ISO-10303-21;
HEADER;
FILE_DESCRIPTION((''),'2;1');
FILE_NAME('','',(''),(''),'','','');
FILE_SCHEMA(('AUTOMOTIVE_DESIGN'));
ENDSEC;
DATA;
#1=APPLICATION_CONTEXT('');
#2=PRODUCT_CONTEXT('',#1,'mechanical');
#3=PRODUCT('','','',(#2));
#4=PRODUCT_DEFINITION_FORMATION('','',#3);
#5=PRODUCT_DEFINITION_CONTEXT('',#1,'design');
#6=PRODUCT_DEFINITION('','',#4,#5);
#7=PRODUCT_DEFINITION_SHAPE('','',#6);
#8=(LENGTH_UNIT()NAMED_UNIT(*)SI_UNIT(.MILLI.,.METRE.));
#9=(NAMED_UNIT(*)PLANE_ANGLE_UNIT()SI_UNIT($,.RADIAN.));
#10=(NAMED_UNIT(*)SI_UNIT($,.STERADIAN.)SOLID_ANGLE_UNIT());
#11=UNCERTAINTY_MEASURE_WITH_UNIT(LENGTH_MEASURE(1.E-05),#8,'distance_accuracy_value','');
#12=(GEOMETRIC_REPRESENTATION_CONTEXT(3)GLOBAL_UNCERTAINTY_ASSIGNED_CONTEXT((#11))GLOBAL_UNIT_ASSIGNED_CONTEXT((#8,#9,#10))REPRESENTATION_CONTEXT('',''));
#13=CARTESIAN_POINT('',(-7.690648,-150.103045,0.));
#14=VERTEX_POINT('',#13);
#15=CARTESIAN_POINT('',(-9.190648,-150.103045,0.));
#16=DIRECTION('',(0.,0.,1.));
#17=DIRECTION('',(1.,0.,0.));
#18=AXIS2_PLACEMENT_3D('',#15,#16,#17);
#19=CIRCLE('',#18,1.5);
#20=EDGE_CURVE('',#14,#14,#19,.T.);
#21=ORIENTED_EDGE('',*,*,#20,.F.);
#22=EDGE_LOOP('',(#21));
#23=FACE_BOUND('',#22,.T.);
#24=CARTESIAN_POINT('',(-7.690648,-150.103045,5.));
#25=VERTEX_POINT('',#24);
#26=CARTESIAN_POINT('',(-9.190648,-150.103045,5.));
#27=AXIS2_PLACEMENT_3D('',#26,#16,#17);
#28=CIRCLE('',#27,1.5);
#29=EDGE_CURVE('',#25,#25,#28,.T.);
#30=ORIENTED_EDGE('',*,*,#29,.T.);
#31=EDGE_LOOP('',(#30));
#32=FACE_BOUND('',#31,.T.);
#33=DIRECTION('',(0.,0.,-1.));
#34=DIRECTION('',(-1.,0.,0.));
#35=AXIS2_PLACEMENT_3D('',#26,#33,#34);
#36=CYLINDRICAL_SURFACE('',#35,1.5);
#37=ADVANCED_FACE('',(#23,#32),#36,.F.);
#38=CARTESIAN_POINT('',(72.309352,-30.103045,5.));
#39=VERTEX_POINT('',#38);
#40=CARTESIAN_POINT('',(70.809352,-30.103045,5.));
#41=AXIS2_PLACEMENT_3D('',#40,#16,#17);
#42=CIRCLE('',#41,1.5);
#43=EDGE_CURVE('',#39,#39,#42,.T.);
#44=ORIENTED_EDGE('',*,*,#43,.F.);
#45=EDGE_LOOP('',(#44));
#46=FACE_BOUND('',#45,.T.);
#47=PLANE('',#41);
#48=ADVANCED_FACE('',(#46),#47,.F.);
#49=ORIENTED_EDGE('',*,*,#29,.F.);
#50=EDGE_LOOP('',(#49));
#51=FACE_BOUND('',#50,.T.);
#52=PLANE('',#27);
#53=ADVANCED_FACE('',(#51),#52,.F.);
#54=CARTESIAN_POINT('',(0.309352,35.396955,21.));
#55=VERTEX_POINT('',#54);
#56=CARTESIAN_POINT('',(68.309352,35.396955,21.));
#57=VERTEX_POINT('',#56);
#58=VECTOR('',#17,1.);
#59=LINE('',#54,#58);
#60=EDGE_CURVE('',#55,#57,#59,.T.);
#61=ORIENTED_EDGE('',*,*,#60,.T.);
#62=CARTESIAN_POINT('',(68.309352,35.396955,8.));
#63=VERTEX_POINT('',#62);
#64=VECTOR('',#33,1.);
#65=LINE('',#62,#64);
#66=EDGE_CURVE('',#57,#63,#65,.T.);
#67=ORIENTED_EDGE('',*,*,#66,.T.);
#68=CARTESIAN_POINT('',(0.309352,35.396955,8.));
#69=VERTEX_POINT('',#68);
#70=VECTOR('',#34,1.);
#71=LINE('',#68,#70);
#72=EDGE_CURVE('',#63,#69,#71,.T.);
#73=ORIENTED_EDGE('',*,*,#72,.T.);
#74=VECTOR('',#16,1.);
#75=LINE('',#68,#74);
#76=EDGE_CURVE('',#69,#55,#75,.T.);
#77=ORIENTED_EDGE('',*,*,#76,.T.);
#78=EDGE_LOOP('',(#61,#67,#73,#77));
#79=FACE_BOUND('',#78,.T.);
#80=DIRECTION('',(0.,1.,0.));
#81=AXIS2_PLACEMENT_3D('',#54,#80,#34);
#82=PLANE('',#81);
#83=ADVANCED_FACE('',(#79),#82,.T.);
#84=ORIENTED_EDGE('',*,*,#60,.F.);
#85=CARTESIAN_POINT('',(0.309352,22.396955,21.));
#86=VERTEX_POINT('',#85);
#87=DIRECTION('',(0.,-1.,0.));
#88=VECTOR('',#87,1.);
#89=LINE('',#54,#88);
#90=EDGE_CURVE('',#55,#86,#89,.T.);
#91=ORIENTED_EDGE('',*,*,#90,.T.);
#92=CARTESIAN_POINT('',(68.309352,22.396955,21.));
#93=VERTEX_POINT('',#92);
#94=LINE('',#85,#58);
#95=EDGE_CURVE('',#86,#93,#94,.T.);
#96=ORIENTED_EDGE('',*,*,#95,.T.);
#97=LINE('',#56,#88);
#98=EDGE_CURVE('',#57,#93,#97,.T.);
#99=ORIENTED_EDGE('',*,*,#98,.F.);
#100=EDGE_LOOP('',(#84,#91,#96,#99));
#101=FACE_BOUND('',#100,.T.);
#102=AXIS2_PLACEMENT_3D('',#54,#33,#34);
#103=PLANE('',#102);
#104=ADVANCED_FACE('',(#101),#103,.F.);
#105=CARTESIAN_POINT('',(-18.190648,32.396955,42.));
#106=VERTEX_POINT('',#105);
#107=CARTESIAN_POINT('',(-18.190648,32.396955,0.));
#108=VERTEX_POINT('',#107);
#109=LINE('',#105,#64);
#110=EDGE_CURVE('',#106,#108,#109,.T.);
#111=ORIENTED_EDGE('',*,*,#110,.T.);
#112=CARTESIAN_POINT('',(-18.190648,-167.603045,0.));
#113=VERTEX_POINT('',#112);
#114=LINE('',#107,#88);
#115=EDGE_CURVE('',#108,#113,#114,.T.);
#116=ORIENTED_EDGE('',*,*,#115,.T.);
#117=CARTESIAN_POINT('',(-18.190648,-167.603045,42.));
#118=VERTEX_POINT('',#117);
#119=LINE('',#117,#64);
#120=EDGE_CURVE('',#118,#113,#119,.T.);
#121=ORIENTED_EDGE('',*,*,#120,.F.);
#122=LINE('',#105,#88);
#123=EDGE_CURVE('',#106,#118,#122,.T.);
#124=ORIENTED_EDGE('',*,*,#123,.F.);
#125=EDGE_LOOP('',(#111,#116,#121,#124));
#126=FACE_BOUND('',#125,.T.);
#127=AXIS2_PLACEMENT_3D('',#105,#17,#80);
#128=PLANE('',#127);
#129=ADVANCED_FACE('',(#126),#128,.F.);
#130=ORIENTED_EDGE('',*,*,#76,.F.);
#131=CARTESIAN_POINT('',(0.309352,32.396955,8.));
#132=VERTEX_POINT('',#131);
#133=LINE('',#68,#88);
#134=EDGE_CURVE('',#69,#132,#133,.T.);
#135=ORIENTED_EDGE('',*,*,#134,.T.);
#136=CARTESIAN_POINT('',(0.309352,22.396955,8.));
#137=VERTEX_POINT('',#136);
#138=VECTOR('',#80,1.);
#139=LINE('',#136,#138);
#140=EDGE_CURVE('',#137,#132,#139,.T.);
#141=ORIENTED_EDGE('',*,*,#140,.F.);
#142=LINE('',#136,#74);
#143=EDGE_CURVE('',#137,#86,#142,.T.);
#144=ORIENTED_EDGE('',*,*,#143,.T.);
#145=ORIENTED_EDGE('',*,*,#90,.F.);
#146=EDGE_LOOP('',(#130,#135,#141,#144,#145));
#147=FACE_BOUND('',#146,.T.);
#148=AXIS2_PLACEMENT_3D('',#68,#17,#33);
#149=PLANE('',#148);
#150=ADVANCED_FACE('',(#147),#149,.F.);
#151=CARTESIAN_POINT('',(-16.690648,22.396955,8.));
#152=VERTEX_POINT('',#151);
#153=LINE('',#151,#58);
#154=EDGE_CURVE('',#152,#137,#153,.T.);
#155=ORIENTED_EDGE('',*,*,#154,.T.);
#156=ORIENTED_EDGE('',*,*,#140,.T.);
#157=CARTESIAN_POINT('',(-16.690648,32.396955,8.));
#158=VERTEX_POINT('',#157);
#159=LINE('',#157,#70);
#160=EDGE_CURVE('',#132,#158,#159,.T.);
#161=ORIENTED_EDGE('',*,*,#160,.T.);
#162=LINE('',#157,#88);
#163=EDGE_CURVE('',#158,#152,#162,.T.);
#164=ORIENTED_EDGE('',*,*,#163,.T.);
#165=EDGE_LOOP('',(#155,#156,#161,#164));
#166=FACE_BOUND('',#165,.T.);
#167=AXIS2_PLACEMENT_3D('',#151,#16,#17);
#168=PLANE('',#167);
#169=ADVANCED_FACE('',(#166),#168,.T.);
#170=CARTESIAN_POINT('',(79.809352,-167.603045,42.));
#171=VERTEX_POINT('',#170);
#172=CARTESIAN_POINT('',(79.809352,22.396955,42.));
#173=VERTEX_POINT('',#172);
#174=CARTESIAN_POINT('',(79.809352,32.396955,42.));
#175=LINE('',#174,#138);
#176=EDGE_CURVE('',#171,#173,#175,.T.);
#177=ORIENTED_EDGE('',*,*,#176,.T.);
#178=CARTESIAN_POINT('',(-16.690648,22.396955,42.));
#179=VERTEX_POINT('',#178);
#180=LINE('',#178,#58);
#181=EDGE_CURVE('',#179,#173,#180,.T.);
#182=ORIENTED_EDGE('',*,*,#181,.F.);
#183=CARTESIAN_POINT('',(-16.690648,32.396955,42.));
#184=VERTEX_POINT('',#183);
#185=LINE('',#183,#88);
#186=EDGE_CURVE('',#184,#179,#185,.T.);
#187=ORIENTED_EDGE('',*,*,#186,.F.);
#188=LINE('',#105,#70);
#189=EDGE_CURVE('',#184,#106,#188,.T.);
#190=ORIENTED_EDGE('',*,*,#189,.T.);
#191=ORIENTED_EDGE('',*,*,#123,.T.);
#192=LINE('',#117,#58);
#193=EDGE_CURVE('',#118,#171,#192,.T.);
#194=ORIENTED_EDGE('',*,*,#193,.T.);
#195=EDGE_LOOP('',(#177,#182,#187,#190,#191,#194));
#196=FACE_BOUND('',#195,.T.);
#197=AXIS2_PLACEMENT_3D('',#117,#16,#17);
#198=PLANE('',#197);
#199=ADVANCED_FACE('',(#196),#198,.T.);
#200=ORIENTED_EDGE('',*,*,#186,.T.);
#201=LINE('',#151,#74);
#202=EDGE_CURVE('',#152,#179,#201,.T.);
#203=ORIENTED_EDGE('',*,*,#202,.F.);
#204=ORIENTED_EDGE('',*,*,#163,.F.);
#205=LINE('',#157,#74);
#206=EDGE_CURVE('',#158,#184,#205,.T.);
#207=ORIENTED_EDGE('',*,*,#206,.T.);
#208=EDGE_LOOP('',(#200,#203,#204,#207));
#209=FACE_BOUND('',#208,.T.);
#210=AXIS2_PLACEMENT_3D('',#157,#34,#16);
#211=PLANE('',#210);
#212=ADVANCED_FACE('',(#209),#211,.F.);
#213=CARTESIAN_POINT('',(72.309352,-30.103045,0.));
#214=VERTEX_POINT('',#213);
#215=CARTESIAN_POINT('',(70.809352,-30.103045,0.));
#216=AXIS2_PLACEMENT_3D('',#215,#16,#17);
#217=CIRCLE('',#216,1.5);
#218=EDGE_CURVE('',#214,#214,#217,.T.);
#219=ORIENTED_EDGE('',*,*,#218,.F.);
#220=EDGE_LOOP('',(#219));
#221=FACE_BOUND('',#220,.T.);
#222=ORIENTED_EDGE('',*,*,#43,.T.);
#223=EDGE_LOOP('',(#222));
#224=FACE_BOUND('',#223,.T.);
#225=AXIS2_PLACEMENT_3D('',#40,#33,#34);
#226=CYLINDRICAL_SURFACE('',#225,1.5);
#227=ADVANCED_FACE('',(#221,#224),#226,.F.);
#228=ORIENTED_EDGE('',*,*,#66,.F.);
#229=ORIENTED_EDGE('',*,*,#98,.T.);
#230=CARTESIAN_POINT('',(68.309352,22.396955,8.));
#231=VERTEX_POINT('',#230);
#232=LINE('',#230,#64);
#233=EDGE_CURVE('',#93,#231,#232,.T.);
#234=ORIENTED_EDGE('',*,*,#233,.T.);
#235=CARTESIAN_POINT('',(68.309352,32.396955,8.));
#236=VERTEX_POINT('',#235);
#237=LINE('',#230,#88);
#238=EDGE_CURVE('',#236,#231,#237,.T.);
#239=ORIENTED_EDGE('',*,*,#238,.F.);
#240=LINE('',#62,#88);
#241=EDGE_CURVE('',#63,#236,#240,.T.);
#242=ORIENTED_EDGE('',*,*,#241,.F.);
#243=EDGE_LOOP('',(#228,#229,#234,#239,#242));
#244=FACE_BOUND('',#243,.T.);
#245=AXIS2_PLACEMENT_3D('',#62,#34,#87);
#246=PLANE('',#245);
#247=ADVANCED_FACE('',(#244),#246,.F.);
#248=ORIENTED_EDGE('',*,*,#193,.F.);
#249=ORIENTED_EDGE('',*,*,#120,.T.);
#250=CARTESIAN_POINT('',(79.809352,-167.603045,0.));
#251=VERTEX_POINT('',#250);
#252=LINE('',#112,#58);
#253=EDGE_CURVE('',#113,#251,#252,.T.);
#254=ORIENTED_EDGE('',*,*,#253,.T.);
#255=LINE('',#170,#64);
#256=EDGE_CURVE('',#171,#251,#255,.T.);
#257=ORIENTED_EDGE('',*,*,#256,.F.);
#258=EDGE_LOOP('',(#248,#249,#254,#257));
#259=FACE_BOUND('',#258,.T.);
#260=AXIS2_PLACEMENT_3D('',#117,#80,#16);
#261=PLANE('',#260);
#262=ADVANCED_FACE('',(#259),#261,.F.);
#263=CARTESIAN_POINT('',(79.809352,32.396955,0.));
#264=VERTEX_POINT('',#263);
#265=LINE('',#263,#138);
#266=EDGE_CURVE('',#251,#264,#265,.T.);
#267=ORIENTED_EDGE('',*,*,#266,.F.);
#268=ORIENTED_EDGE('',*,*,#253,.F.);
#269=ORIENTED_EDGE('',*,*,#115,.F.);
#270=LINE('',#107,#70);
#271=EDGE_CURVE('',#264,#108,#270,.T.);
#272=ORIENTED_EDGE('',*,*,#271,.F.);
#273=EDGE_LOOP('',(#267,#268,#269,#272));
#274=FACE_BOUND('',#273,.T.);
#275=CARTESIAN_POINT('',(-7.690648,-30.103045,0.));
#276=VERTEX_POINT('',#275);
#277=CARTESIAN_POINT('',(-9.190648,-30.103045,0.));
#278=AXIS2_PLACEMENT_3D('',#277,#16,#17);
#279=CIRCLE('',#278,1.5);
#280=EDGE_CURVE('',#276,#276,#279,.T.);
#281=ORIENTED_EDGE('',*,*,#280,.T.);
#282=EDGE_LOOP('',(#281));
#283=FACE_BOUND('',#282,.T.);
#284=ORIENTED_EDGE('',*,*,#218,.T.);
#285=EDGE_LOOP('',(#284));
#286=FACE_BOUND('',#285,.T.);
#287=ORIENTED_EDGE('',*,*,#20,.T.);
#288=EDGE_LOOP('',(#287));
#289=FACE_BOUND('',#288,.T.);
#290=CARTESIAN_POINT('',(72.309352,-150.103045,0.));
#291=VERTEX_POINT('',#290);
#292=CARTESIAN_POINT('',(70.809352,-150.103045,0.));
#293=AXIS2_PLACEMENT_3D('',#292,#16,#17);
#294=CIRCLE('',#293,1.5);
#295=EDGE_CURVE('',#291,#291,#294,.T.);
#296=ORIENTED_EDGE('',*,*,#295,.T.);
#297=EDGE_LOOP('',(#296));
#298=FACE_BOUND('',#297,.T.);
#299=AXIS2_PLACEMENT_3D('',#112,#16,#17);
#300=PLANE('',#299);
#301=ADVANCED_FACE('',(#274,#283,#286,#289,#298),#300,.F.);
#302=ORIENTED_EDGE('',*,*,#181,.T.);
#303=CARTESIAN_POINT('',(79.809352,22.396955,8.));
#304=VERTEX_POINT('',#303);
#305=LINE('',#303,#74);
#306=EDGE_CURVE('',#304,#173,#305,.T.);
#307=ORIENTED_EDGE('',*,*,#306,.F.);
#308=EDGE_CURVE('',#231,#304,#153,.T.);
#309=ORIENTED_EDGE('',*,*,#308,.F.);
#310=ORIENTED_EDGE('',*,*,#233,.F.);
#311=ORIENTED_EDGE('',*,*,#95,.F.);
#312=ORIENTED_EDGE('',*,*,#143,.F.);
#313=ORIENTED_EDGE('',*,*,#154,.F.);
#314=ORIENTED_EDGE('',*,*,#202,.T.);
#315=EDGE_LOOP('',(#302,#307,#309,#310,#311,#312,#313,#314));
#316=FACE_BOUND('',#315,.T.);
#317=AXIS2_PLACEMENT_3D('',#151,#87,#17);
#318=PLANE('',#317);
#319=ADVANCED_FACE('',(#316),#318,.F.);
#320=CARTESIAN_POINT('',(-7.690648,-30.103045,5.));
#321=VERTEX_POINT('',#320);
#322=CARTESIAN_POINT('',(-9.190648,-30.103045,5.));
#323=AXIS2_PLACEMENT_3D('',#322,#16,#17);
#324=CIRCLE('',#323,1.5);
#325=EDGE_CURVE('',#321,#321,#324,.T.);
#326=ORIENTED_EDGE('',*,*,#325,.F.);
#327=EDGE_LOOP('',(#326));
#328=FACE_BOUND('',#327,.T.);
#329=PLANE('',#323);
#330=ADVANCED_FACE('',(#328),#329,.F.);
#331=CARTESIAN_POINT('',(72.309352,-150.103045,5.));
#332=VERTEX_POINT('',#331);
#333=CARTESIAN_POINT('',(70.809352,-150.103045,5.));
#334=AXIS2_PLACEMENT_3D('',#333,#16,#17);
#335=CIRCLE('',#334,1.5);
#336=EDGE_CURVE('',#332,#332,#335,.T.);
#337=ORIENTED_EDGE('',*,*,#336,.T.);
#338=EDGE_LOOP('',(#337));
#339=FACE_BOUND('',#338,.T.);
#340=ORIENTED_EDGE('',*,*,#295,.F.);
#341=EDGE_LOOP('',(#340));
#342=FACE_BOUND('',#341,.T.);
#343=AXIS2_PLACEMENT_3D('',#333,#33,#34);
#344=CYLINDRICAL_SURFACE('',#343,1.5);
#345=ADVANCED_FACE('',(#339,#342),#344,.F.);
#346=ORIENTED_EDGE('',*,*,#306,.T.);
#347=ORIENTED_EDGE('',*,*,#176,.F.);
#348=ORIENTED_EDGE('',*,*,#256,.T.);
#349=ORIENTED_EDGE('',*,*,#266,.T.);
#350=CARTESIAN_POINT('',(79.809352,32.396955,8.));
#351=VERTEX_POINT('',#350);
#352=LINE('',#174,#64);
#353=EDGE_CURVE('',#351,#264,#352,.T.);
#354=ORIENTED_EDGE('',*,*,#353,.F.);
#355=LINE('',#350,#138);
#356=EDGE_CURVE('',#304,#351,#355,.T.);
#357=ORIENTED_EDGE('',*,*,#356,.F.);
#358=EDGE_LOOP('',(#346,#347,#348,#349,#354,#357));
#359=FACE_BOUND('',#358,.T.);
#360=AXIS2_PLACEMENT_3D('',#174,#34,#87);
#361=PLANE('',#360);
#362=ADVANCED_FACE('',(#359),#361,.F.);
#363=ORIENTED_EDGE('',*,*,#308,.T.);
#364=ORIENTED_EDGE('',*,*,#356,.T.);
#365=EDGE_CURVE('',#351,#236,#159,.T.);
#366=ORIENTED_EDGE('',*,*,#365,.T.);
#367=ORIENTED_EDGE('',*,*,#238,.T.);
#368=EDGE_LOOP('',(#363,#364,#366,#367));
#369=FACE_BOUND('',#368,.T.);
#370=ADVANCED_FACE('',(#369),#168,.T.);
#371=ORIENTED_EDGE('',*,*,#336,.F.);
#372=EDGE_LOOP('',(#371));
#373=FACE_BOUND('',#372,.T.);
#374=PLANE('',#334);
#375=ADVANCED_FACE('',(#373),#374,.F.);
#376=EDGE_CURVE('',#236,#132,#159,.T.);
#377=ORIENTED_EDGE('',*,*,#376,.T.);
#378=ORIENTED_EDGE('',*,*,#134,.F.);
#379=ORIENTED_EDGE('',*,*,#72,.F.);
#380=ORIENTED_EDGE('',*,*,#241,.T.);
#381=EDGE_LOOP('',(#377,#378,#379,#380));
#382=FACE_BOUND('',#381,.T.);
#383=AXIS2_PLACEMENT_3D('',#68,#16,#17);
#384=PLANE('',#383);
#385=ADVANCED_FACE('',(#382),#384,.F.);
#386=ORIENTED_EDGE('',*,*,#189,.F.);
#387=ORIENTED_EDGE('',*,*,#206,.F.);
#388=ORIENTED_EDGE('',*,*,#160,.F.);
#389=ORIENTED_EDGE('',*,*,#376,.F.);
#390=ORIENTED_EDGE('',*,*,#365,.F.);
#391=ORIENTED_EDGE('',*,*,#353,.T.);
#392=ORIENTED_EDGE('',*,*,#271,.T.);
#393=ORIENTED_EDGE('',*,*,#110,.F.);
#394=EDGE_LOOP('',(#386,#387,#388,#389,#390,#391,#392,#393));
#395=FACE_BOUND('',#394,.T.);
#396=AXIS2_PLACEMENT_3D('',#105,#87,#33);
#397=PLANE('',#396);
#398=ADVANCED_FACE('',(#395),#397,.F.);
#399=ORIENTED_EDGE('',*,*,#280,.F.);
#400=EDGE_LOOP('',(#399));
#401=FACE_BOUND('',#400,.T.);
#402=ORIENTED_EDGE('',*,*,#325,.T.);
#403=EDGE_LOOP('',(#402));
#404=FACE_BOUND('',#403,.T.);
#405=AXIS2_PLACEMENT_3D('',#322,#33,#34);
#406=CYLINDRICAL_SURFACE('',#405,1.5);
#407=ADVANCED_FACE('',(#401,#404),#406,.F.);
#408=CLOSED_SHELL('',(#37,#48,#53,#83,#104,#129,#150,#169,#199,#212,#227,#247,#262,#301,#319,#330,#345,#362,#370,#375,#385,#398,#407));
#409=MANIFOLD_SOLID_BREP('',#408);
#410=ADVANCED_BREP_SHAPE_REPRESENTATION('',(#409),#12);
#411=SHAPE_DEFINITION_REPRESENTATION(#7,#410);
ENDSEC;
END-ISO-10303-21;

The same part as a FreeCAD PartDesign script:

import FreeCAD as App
import Part
import Sketcher
from FreeCAD import Vector
Q = App.Units.Quantity


def add_polygon(sketch, points):
    """Adds a closed chain of lines whose ends are joined by coincident constraints."""
    first, n = sketch.GeometryCount, len(points)
    for a, b in zip(points, points[1:] + points[:1]):
        sketch.addGeometry(Part.LineSegment(App.Vector(*a, 0), App.Vector(*b, 0)), False)
    for i in range(n):
        sketch.addConstraint(Sketcher.Constraint("Coincident", first + i, 2, first + (i + 1) % n, 1))

doc = App.newDocument("Part")
body = doc.addObject("PartDesign::Body", "Body")

sketch1 = doc.addObject("Sketcher::SketchObject", "Sketch")
body.addObject(sketch1)
sketch1.AttachmentSupport = (doc.XY_Plane, [""])
sketch1.MapMode = "FlatFace"
add_polygon(sketch1, [(-18, 32), (-18, -168), (80, -168), (80, 32)])
sketch1.addConstraint([
    Sketcher.Constraint("Vertical", 0),
    Sketcher.Constraint("Horizontal", 1),
    Sketcher.Constraint("Vertical", 2),
    Sketcher.Constraint("Horizontal", 3),
    Sketcher.Constraint("DistanceX", 1, 1, 1, 2, Q("98 mm")),
    Sketcher.Constraint("DistanceY", 0, 2, 0, 1, Q("200 mm")),
    Sketcher.Constraint("DistanceX", 0, 2, -1, 1, Q("18.190648 mm")),
    Sketcher.Constraint("DistanceY", 0, 2, -1, 1, Q("167.603045 mm")),
])
pad1 = doc.addObject("PartDesign::Pad", "Pad")
body.addObject(pad1)
pad1.Profile = sketch1
pad1.Length = 42

sketch2 = doc.addObject("Sketcher::SketchObject", "Sketch001")
body.addObject(sketch2)
sketch2.AttachmentSupport = (doc.XY_Plane, [""])
sketch2.MapMode = "FlatFace"
sketch2.addGeometry([
    Part.Circle(Vector(-9.2, -30.1, 0), Vector(0, 0, 1), 1.5),
    Part.Circle(Vector(70.8, -30.1, 0), Vector(0, 0, 1), 1.5),
    Part.Circle(Vector(-9.2, -150.1, 0), Vector(0, 0, 1), 1.5),
    Part.Circle(Vector(70.8, -150.1, 0), Vector(0, 0, 1), 1.5),
], False)
sketch2.addConstraint([
    Sketcher.Constraint("Equal", 0, 1),
    Sketcher.Constraint("Equal", 1, 2),
    Sketcher.Constraint("Equal", 2, 3),
    Sketcher.Constraint("Horizontal", 0, 3, 1, 3),
    Sketcher.Constraint("Horizontal", 2, 3, 3, 3),
    Sketcher.Constraint("Vertical", 0, 3, 2, 3),
    Sketcher.Constraint("Vertical", 1, 3, 3, 3),
    Sketcher.Constraint("Diameter", 0, Q("3 mm")),
    Sketcher.Constraint("DistanceX", 0, 3, 1, 3, Q("80 mm")),
    Sketcher.Constraint("DistanceY", 2, 3, 0, 3, Q("120 mm")),
    Sketcher.Constraint("DistanceX", 0, 3, -1, 1, Q("9.190648 mm")),
    Sketcher.Constraint("DistanceY", 0, 3, -1, 1, Q("30.103045 mm")),
])
pocket1 = doc.addObject("PartDesign::Pocket", "Pocket")
body.addObject(pocket1)
pocket1.Profile = sketch2
pocket1.Length = 5
pocket1.Reversed = True

sketch3 = doc.addObject("Sketcher::SketchObject", "Sketch002")
body.addObject(sketch3)
sketch3.AttachmentSupport = (doc.XY_Plane, [""])
sketch3.MapMode = "FlatFace"
sketch3.AttachmentOffset = App.Placement(Vector(0, 0, 42), App.Rotation())
add_polygon(sketch3, [(-17, 32), (-17, 22), (80, 22), (80, 32)])
sketch3.addConstraint([
    Sketcher.Constraint("Vertical", 0),
    Sketcher.Constraint("Horizontal", 1),
    Sketcher.Constraint("Vertical", 2),
    Sketcher.Constraint("Horizontal", 3),
    Sketcher.Constraint("DistanceY", 0, 2, 0, 1, Q("10 mm")),
    Sketcher.Constraint("DistanceX", 1, 1, 1, 2, Q("96.5 mm")),
    Sketcher.Constraint("DistanceX", 0, 2, -1, 1, Q("16.690648 mm")),
    Sketcher.Constraint("DistanceY", -1, 1, 0, 2, Q("22.396955 mm")),
])
pocket2 = doc.addObject("PartDesign::Pocket", "Pocket001")
body.addObject(pocket2)
pocket2.Profile = sketch3
pocket2.Length = 34

sketch4 = doc.addObject("Sketcher::SketchObject", "Sketch003")
body.addObject(sketch4)
sketch4.AttachmentSupport = (doc.XZ_Plane, [""])
sketch4.MapMode = "FlatFace"
sketch4.AttachmentOffset = App.Placement(Vector(0, 0, -22.396955), App.Rotation())
add_polygon(sketch4, [(0, 8), (0, 21), (68, 21), (68, 8)])
sketch4.addConstraint([
    Sketcher.Constraint("Vertical", 0),
    Sketcher.Constraint("Horizontal", 1),
    Sketcher.Constraint("Vertical", 2),
    Sketcher.Constraint("Horizontal", 3),
    Sketcher.Constraint("DistanceX", 1, 1, 1, 2, Q("68 mm")),
    Sketcher.Constraint("DistanceY", 0, 1, 0, 2, Q("13 mm")),
    Sketcher.Constraint("DistanceY", -1, 1, 0, 2, Q("21 mm")),
    Sketcher.Constraint("DistanceX", -1, 1, 0, 2, Q("0.309352 mm")),
])
pad2 = doc.addObject("PartDesign::Pad", "Pad001")
body.addObject(pad2)
pad2.Profile = sketch4
pad2.Length = 13
pad2.Reversed = True

doc.recompute()
